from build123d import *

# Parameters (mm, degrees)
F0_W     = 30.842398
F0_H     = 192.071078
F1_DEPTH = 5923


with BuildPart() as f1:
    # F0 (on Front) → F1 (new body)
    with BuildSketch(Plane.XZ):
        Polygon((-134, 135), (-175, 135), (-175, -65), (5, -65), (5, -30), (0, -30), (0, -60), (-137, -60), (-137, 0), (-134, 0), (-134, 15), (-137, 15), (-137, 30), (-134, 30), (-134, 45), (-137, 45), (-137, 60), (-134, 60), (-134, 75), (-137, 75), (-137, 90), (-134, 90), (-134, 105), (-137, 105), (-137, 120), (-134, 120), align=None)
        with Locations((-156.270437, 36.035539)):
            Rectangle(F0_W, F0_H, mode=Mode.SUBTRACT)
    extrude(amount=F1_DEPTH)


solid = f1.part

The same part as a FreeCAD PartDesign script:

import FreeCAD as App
import Part
import Sketcher


def add_polygon(sketch, points):
    """Adds a closed chain of lines whose ends are joined by coincident constraints."""
    first, n = sketch.GeometryCount, len(points)
    for a, b in zip(points, points[1:] + points[:1]):
        sketch.addGeometry(Part.LineSegment(App.Vector(*a, 0), App.Vector(*b, 0)), False)
    for i in range(n):
        sketch.addConstraint(Sketcher.Constraint("Coincident", first + i, 2, first + (i + 1) % n, 1))

doc = App.newDocument("Part")
body = doc.addObject("PartDesign::Body", "Body")

sketch1 = doc.addObject("Sketcher::SketchObject", "Sketch")
body.addObject(sketch1)
sketch1.AttachmentSupport = (doc.XZ_Plane, [""])
sketch1.MapMode = "FlatFace"
add_polygon(sketch1, [(-134, 135), (-175, 135), (-175, -65), (5, -65), (5, -30), (0, -30), (0, -60), (-137, -60), (-137, 0), (-134, 0), (-134, 15), (-137, 15), (-137, 30), (-134, 30), (-134, 45), (-137, 45), (-137, 60), (-134, 60), (-134, 75), (-137, 75), (-137, 90), (-134, 90), (-134, 105), (-137, 105), (-137, 120), (-134, 120)])
add_polygon(sketch1, [(-140.849238, -60), (-171.691636, -60), (-171.691636, 132.071078), (-140.849238, 132.071078)])
sketch1.addConstraint([
    Sketcher.Constraint("Horizontal", 0),
    Sketcher.Constraint("Vertical", 1),
    Sketcher.Constraint("Horizontal", 2),
    Sketcher.Constraint("Vertical", 3),
    Sketcher.Constraint("Horizontal", 4),
    Sketcher.Constraint("Vertical", 5),
    Sketcher.Constraint("Horizontal", 6),
    Sketcher.Constraint("Vertical", 7),
    Sketcher.Constraint("Horizontal", 8),
    Sketcher.Constraint("Vertical", 9),
    Sketcher.Constraint("Horizontal", 10),
    Sketcher.Constraint("Vertical", 11),
    Sketcher.Constraint("Horizontal", 12),
    Sketcher.Constraint("Vertical", 13),
    Sketcher.Constraint("Horizontal", 14),
    Sketcher.Constraint("Vertical", 15),
    Sketcher.Constraint("Horizontal", 16),
    Sketcher.Constraint("Vertical", 17),
    Sketcher.Constraint("Horizontal", 18),
    Sketcher.Constraint("Vertical", 19),
    Sketcher.Constraint("Horizontal", 20),
    Sketcher.Constraint("Vertical", 21),
    Sketcher.Constraint("Horizontal", 22),
    Sketcher.Constraint("Vertical", 23),
    Sketcher.Constraint("Horizontal", 24),
    Sketcher.Constraint("Vertical", 25),
    Sketcher.Constraint("Horizontal", 26),
    Sketcher.Constraint("Vertical", 27),
    Sketcher.Constraint("Horizontal", 28),
    Sketcher.Constraint("Vertical", 29),
    Sketcher.Constraint("Symmetric", 6, 2, 15, 2, -1),
    Sketcher.Constraint("PointOnObject", 4, 2, -2),
    Sketcher.Constraint("PointOnObject", 7, 2, -1),
    Sketcher.Constraint("Horizontal", 6, 2, 26, 2),
    Sketcher.Constraint("Vertical", 7, 2, 10, 2),
    Sketcher.Constraint("Vertical", 9, 2, 12, 2),
    Sketcher.Constraint("Vertical", 13, 2, 16, 2),
    Sketcher.Constraint("Vertical", 15, 2, 18, 2),
    Sketcher.Constraint("Vertical", 17, 2, 20, 2),
    Sketcher.Constraint("Vertical", 19, 2, 22, 2),
    Sketcher.Constraint("Vertical", 21, 2, 24, 2),
    Sketcher.Constraint("Equal", 9, 11),
    Sketcher.Constraint("Equal", 11, 13),
    Sketcher.Constraint("Equal", 13, 15),
    Sketcher.Constraint("Equal", 15, 17),
    Sketcher.Constraint("Equal", 17, 19),
    Sketcher.Constraint("Equal", 19, 21),
    Sketcher.Constraint("Equal", 21, 23),
    Sketcher.Constraint("Equal", 23, 25),
    Sketcher.Constraint("DistanceX", 0, 2, 0, 1, 41.0),
    Sketcher.Constraint("DistanceX", 2, 1, 2, 2, 180.0),
    Sketcher.Constraint("DistanceX", 4, 2, 4, 1, 5.0),
    Sketcher.Constraint("DistanceX", 6, 2, 6, 1, 137.0),
    Sketcher.Constraint("DistanceY", 1, 2, 1, 1, 200.0),
    Sketcher.Constraint("DistanceY", 3, 1, 3, 2, 35.0),
    Sketcher.Constraint("DistanceY", 5, 2, 5, 1, 30.0),
    Sketcher.Constraint("DistanceY", 27, 1, 27, 2, 192.071078),
    Sketcher.Constraint("DistanceX", 26, 2, 26, 1, 30.842398),
    Sketcher.Constraint("DistanceX", 28, 2, -1, 1, 140.849238),
])
pad1 = doc.addObject("PartDesign::Pad", "Pad")
body.addObject(pad1)
pad1.Profile = sketch1
pad1.Length = 5923

doc.recompute()
